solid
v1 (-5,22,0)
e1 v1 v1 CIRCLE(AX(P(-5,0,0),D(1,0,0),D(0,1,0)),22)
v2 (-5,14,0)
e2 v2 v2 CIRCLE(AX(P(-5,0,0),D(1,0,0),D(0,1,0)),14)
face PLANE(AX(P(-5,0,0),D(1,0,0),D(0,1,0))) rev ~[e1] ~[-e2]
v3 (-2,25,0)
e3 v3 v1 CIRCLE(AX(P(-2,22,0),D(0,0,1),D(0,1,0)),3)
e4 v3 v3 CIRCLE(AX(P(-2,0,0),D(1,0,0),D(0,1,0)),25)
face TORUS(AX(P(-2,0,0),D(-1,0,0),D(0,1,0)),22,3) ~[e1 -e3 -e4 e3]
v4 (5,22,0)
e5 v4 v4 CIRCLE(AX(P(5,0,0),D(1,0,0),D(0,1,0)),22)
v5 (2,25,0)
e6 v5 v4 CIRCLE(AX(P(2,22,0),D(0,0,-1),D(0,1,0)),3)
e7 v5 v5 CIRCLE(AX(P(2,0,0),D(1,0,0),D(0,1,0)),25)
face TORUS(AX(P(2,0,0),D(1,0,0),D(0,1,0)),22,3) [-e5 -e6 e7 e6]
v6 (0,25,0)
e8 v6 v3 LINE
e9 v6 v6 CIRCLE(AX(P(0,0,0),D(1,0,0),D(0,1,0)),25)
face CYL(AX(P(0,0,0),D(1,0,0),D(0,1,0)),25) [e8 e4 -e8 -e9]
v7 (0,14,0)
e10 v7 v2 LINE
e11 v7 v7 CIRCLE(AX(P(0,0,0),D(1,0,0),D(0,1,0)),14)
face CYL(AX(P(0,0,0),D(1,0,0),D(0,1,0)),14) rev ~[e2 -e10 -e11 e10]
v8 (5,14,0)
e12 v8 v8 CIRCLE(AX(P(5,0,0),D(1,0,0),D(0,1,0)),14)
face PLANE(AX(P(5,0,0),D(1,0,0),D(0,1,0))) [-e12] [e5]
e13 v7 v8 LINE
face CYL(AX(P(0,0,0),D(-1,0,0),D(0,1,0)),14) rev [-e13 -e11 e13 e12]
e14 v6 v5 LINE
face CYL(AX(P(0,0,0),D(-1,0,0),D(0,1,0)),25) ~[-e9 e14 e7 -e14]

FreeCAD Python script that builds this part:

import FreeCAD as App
import Part
import Sketcher
from FreeCAD import Vector


def edges_at(feature, points):
    """Names of the edges that pass closest to the given points."""
    edges = feature.Shape.Edges
    near = lambda p: min(range(len(edges)), key=lambda i: edges[i].distToShape(Part.Vertex(*p))[0])
    return sorted({f"Edge{near(p) + 1}" for p in points})

doc = App.newDocument("Part")
body = doc.addObject("PartDesign::Body", "Body")

sketch1 = body.newObject("Sketcher::SketchObject", "Sketch")
sketch1.AttachmentSupport = (doc.getObject("YZ_Plane"), [""])
sketch1.MapMode = "FlatFace"
sketch1.addGeometry(Part.Circle(Vector(0, 0, 0), Vector(0, 0, 1), 25), False)
sketch1.addGeometry(Part.Circle(Vector(0, 0, 0), Vector(0, 0, 1), 14), False)
sketch1.addConstraint(Sketcher.Constraint("Coincident", 0, 3, -1, 1))
sketch1.addConstraint(Sketcher.Constraint("Coincident", 1, 3, -1, 1))
sketch1.addConstraint(Sketcher.Constraint("Diameter", 0, 50.0))
sketch1.addConstraint(Sketcher.Constraint("Diameter", 1, 28.0))
pad1 = body.newObject("PartDesign::Pad", "Pad")
pad1.Profile = sketch1
pad1.Length = 10
pad1.Midplane = True
doc.recompute()

fillet = body.newObject("PartDesign::Fillet", "Fillet")
fillet.Base = (pad1, edges_at(pad1, [(5, -25, 0), (-5, -25, 0)]))
fillet.Radius = 3

doc.recompute()
